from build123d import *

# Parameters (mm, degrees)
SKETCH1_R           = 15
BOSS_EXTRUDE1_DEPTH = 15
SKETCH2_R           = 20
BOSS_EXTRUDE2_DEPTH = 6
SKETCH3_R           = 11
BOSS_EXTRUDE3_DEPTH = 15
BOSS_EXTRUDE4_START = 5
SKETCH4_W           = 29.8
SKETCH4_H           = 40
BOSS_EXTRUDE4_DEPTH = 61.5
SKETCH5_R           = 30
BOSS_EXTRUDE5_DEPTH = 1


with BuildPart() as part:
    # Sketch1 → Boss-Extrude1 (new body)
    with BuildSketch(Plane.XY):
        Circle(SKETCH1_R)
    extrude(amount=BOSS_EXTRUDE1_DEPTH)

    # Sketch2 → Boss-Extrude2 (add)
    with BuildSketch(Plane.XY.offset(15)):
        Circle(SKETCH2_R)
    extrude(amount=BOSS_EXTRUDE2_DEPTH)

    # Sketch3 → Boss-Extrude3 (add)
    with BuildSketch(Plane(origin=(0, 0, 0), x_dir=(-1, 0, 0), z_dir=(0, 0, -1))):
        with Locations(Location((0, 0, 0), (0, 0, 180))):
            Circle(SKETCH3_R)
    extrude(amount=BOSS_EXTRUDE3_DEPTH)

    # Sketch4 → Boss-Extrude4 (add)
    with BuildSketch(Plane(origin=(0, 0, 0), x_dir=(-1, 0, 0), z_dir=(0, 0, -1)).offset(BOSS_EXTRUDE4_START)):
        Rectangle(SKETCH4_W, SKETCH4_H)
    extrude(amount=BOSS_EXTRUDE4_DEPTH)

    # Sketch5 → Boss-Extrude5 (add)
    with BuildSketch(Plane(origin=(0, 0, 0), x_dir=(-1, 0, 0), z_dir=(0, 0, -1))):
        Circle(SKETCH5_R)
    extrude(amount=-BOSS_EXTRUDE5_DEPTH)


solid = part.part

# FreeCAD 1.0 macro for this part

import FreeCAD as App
import Part
import Sketcher
from FreeCAD import Vector


def add_polygon(sketch, points):
    """Adds a closed chain of lines whose ends are joined by coincident constraints."""
    first, n = sketch.GeometryCount, len(points)
    for a, b in zip(points, points[1:] + points[:1]):
        sketch.addGeometry(Part.LineSegment(App.Vector(*a, 0), App.Vector(*b, 0)), False)
    for i in range(n):
        sketch.addConstraint(Sketcher.Constraint("Coincident", first + i, 2, first + (i + 1) % n, 1))

doc = App.newDocument("Part")
body = doc.addObject("PartDesign::Body", "Body")

# Sketch on XY plane
sketch1 = body.newObject("Sketcher::SketchObject", "Sketch")
sketch1.AttachmentSupport = (doc.getObject("XY_Plane"), [""])
sketch1.MapMode = "FlatFace"
sketch1.addGeometry(Part.Circle(Vector(0, 0, 0), Vector(0, 0, 1), 15), False)
sketch1.addConstraint([
    Sketcher.Constraint("Coincident", 0, 3, -1, 1),
    Sketcher.Constraint("Diameter", 0, 30.0),
])
pad1 = body.newObject("PartDesign::Pad", "Pad")
pad1.Profile = sketch1
pad1.Length = 15

# Sketch on XY plane
sketch2 = body.newObject("Sketcher::SketchObject", "Sketch001")
sketch2.AttachmentSupport = (doc.getObject("XY_Plane"), [""])
sketch2.MapMode = "FlatFace"
sketch2.AttachmentOffset = App.Placement(Vector(0, 0, 15), App.Rotation())
sketch2.addGeometry(Part.Circle(Vector(0, 0, 0), Vector(0, 0, 1), 20), False)
sketch2.addConstraint([
    Sketcher.Constraint("Coincident", 0, 3, -1, 1),
    Sketcher.Constraint("Diameter", 0, 40.0),
])
pad2 = body.newObject("PartDesign::Pad", "Pad001")
pad2.Profile = sketch2
pad2.Length = 6

# Sketch on XY plane
sketch3 = body.newObject("Sketcher::SketchObject", "Sketch002")
sketch3.AttachmentSupport = (doc.getObject("XY_Plane"), [""])
sketch3.MapMode = "FlatFace"
sketch3.addGeometry(Part.Circle(Vector(0, 0, 0), Vector(0, 0, 1), 11), False)
sketch3.addConstraint([
    Sketcher.Constraint("Coincident", 0, 3, -1, 1),
    Sketcher.Constraint("Diameter", 0, 22.0),
])
pad3 = body.newObject("PartDesign::Pad", "Pad002")
pad3.Profile = sketch3
pad3.Length = 15
pad3.Reversed = True

# Sketch on XY plane
sketch4 = body.newObject("Sketcher::SketchObject", "Sketch003")
sketch4.AttachmentSupport = (doc.getObject("XY_Plane"), [""])
sketch4.MapMode = "FlatFace"
sketch4.AttachmentOffset = App.Placement(Vector(0, 0, -5), App.Rotation())
add_polygon(sketch4, [(15, 20), (15, -20), (-15, -20), (-15, 20)])  # lines 0-3
sketch4.addConstraint([
    Sketcher.Constraint("Vertical", 0),
    Sketcher.Constraint("Horizontal", 1),
    Sketcher.Constraint("Vertical", 2),
    Sketcher.Constraint("Horizontal", 3),
    Sketcher.Constraint("Symmetric", 0, 2, 2, 2, -1, 1),
    Sketcher.Constraint("DistanceY", 0, 2, 0, 1, 40.0),
    Sketcher.Constraint("DistanceX", 1, 2, 1, 1, 29.8),
])
pad4 = body.newObject("PartDesign::Pad", "Pad003")
pad4.Profile = sketch4
pad4.Length = 61.5
pad4.Reversed = True

# Sketch on XY plane
sketch5 = body.newObject("Sketcher::SketchObject", "Sketch004")
sketch5.AttachmentSupport = (doc.getObject("XY_Plane"), [""])
sketch5.MapMode = "FlatFace"
sketch5.addGeometry(Part.Circle(Vector(0, 0, 0), Vector(0, 0, 1), 30), False)
sketch5.addConstraint([
    Sketcher.Constraint("Coincident", 0, 3, -1, 1),
    Sketcher.Constraint("Diameter", 0, 60.0),
])
pad5 = body.newObject("PartDesign::Pad", "Pad004")
pad5.Profile = sketch5
pad5.Length = 1

doc.recompute()
